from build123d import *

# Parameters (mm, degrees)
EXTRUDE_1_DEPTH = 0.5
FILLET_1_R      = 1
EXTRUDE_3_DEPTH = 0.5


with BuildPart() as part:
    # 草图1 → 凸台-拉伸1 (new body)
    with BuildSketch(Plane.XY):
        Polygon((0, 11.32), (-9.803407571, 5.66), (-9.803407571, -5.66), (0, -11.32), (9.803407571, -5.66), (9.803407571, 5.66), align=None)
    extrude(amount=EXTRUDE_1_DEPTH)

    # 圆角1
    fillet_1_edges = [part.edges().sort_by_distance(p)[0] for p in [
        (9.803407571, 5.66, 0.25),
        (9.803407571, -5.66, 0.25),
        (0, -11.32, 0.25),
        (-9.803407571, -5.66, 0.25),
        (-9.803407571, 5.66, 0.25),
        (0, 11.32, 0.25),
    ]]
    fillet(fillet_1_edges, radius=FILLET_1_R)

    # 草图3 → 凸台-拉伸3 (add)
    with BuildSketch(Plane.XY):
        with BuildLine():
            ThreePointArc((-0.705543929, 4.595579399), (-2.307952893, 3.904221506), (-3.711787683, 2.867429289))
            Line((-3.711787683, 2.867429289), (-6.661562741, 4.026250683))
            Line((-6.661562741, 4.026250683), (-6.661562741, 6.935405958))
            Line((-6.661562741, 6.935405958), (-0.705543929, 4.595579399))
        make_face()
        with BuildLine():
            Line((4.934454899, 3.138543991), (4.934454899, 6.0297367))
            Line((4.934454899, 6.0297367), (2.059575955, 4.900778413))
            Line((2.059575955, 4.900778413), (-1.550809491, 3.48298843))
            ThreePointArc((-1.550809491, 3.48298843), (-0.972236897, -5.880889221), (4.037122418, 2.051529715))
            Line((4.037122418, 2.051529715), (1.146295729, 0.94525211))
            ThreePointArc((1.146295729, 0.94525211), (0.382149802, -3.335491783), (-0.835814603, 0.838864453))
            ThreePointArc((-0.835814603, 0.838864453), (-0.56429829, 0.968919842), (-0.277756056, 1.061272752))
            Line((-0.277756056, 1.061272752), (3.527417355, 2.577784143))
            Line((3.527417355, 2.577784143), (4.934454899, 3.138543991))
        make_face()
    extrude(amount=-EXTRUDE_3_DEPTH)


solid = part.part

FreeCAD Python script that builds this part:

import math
import FreeCAD as App
import Part
import Sketcher
Q = App.Units.Quantity


def edges_at(feature, points):
    """Names of the edges that pass closest to the given points."""
    edges = feature.Shape.Edges
    near = lambda p: min(range(len(edges)), key=lambda i: edges[i].distToShape(Part.Vertex(*p))[0])
    return sorted({f"Edge{near(p) + 1}" for p in points})


def add_polygon(sketch, points):
    """Adds a closed chain of lines whose ends are joined by coincident constraints."""
    first, n = sketch.GeometryCount, len(points)
    for a, b in zip(points, points[1:] + points[:1]):
        sketch.addGeometry(Part.LineSegment(App.Vector(*a, 0), App.Vector(*b, 0)), False)
    for i in range(n):
        sketch.addConstraint(Sketcher.Constraint("Coincident", first + i, 2, first + (i + 1) % n, 1))

doc = App.newDocument("Part")
body = doc.addObject("PartDesign::Body", "Body")

# Sketch on XY plane
sketch1 = body.newObject("Sketcher::SketchObject", "Sketch")
sketch1.AttachmentSupport = (doc.getObject("XY_Plane"), [""])
sketch1.MapMode = "FlatFace"
add_polygon(sketch1, [(0, 11.32), (-9.803408, 5.66), (-9.803408, -5.66), (0, -11.32), (9.803408, -5.66), (9.803408, 5.66)])  # lines 0-5
sketch1.addConstraint(Sketcher.Constraint("Vertical", 1))
sketch1.addConstraint(Sketcher.Constraint("Vertical", 4))
sketch1.addConstraint(Sketcher.Constraint("Symmetric", 0, 2, 3, 2, -1, 1))
sketch1.addConstraint(Sketcher.Constraint("Symmetric", 2, 2, 5, 2, -1, 1))
sketch1.addConstraint(Sketcher.Constraint("PointOnObject", 2, 2, -2))
sketch1.addConstraint(Sketcher.Constraint("Parallel", 2, 5))
sketch1.addConstraint(Sketcher.Constraint("Horizontal", 1, 2, 3, 2))
sketch1.addConstraint(Sketcher.Constraint("Angle", 0, Q("-150 deg")))
sketch1.addConstraint(Sketcher.Constraint("DistanceY", 1, 2, 1, 1, Q("11.32 mm")))
sketch1.addConstraint(Sketcher.Constraint("Distance", 0, Q("11.32 mm")))
pad1 = body.newObject("PartDesign::Pad", "Pad")
pad1.Profile = sketch1
pad1.Length = 0.5
doc.recompute()

fillet = body.newObject("PartDesign::Fillet", "Fillet")
fillet.Base = (pad1, edges_at(pad1, [
    (9.803, 5.66, 0.25),
    (9.803, -5.66, 0.25),
    (0, -11.32, 0.25),
    (-9.803, -5.66, 0.25),
    (-9.803, 5.66, 0.25),
    (0, 11.32, 0.25),
]))
fillet.Radius = 1

# Sketch on XY plane
sketch2 = body.newObject("Sketcher::SketchObject", "Sketch001")
sketch2.AttachmentSupport = (doc.getObject("XY_Plane"), [""])
sketch2.MapMode = "FlatFace"
sketch2.addGeometry(Part.ArcOfCircle(Part.Circle(App.Vector(1.501624, -2.722817, 0), App.Vector(0, 0, 1), 7.643986), math.radians(106.782879), math.radians(133.002318)), False)
sketch2.addGeometry(Part.LineSegment(App.Vector(-0.705544, 4.595579, 0), App.Vector(-6.661563, 6.935406, 0)), False)
sketch2.addGeometry(Part.LineSegment(App.Vector(-6.661563, 6.935406, 0), App.Vector(-6.661563, 4.026251, 0)), False)
sketch2.addGeometry(Part.LineSegment(App.Vector(-6.661563, 4.026251, 0), App.Vector(-3.711788, 2.867429, 0)), False)
sketch2.addGeometry(Part.LineSegment(App.Vector(4.934455, 3.138544, 0), App.Vector(4.934455, 6.029737, 0)), False)
sketch2.addGeometry(Part.LineSegment(App.Vector(4.934455, 6.029737, 0), App.Vector(2.059576, 4.900778, 0)), False)
sketch2.addGeometry(Part.LineSegment(App.Vector(2.059576, 4.900778, 0), App.Vector(-1.550809, 3.482988, 0)), False)
sketch2.addGeometry(Part.ArcOfCircle(Part.Circle(App.Vector(0.251075, -1.10549, 0), App.Vector(0, 0, 1), 4.929597), math.radians(111.439821), math.radians(399.823259)), False)
sketch2.addGeometry(Part.LineSegment(App.Vector(4.037122, 2.05153, 0), App.Vector(1.146296, 0.945252, 0)), False)
sketch2.addGeometry(Part.ArcOfCircle(Part.Circle(App.Vector(0.26246, -1.105551, 0), App.Vector(0, 0, 1), 2.23315), math.radians(119.459296), math.radians(426.685387)), False)
sketch2.addGeometry(Part.ArcOfCircle(Part.Circle(App.Vector(0.26246, -1.105551, 0), App.Vector(0, 0, 1), 2.23315), math.radians(103.99916), math.radians(119.459296)), False)
sketch2.addGeometry(Part.LineSegment(App.Vector(-0.277756, 1.061273, 0), App.Vector(3.527417, 2.577784, 0)), False)
sketch2.addGeometry(Part.LineSegment(App.Vector(3.527417, 2.577784, 0), App.Vector(4.934455, 3.138544, 0)), False)
sketch2.addConstraint(Sketcher.Constraint("Coincident", 0, 1, 1, 1))
sketch2.addConstraint(Sketcher.Constraint("Coincident", 1, 2, 2, 1))
sketch2.addConstraint(Sketcher.Constraint("Coincident", 2, 2, 3, 1))
sketch2.addConstraint(Sketcher.Constraint("Coincident", 3, 2, 0, 2))
sketch2.addConstraint(Sketcher.Constraint("Coincident", 4, 2, 5, 1))
sketch2.addConstraint(Sketcher.Constraint("Coincident", 5, 2, 6, 1))
sketch2.addConstraint(Sketcher.Constraint("Tangent", 6, 2, 7, 1))
sketch2.addConstraint(Sketcher.Constraint("Coincident", 7, 2, 8, 1))
sketch2.addConstraint(Sketcher.Constraint("Coincident", 8, 2, 9, 2))
sketch2.addConstraint(Sketcher.Constraint("Tangent", 9, 1, 10, 2))
sketch2.addConstraint(Sketcher.Constraint("Coincident", 10, 1, 11, 1))
sketch2.addConstraint(Sketcher.Constraint("Coincident", 11, 2, 12, 1))
sketch2.addConstraint(Sketcher.Constraint("Coincident", 12, 2, 4, 1))
sketch2.addConstraint(Sketcher.Constraint("Vertical", 2))
sketch2.addConstraint(Sketcher.Constraint("Vertical", 4))
sketch2.addConstraint(Sketcher.Constraint("Equal", 9, 10))
sketch2.addConstraint(Sketcher.Constraint("Parallel", 1, 3))
sketch2.addConstraint(Sketcher.Constraint("Parallel", 5, 6))
sketch2.addConstraint(Sketcher.Constraint("Parallel", 11, 12))
sketch2.addConstraint(Sketcher.Constraint("Radius", 9, Q("2.23315 mm")))
sketch2.addConstraint(Sketcher.Constraint("DistanceX", 0, 1, 4, 2, Q("5.639999 mm")))
sketch2.addConstraint(Sketcher.Constraint("Radius", 0, Q("7.643986 mm")))
sketch2.addConstraint(Sketcher.Constraint("Radius", 7, Q("4.929597 mm")))
sketch2.addConstraint(Sketcher.Constraint("DistanceY", 0, 1, 5, 2, Q("0.305199 mm")))
sketch2.addConstraint(Sketcher.Constraint("Distance", 6, Q("3.87879 mm")))
sketch2.addConstraint(Sketcher.Constraint("DistanceY", 2, 2, 2, 1, Q("2.909155 mm")))
sketch2.addConstraint(Sketcher.Constraint("DistanceY", 4, 1, 4, 2, Q("2.891193 mm")))
sketch2.addConstraint(Sketcher.Constraint("DistanceY", 7, 3, -1, 1, Q("1.10549 mm")))
sketch2.addConstraint(Sketcher.Constraint("DistanceX", -1, 1, 9, 3, Q("0.26246 mm")))
sketch2.addConstraint(Sketcher.Constraint("DistanceY", 9, 3, -1, 1, Q("1.105551 mm")))
sketch2.addConstraint(Sketcher.Constraint("DistanceY", -1, 1, 0, 1, Q("4.595579 mm")))
sketch2.addConstraint(Sketcher.Constraint("DistanceY", -1, 1, 2, 2, Q("4.026251 mm")))
sketch2.addConstraint(Sketcher.Constraint("DistanceY", -1, 1, 3, 2, Q("2.867429 mm")))
sketch2.addConstraint(Sketcher.Constraint("DistanceX", 6, 2, -1, 1, Q("1.550809 mm")))
sketch2.addConstraint(Sketcher.Constraint("DistanceY", -1, 1, 7, 2, Q("2.05153 mm")))
sketch2.addConstraint(Sketcher.Constraint("DistanceX", 7, 3, 0, 3, Q("1.250549 mm")))
sketch2.addConstraint(Sketcher.Constraint("DistanceX", 0, 1, 7, 3, Q("0.956619 mm")))
sketch2.addConstraint(Sketcher.Constraint("DistanceX", 7, 3, 8, 2, Q("0.89522 mm")))
sketch2.addConstraint(Sketcher.Constraint("DistanceX", 9, 1, 8, 2, Q("1.98211 mm")))
sketch2.addConstraint(Sketcher.Constraint("DistanceX", 9, 1, 10, 1, Q("0.558059 mm")))
sketch2.addConstraint(Sketcher.Constraint("DistanceX", 5, 2, 11, 2, Q("1.467841 mm")))
pad2 = body.newObject("PartDesign::Pad", "Pad001")
pad2.Profile = sketch2
pad2.Length = 0.5
pad2.Reversed = True

doc.recompute()
